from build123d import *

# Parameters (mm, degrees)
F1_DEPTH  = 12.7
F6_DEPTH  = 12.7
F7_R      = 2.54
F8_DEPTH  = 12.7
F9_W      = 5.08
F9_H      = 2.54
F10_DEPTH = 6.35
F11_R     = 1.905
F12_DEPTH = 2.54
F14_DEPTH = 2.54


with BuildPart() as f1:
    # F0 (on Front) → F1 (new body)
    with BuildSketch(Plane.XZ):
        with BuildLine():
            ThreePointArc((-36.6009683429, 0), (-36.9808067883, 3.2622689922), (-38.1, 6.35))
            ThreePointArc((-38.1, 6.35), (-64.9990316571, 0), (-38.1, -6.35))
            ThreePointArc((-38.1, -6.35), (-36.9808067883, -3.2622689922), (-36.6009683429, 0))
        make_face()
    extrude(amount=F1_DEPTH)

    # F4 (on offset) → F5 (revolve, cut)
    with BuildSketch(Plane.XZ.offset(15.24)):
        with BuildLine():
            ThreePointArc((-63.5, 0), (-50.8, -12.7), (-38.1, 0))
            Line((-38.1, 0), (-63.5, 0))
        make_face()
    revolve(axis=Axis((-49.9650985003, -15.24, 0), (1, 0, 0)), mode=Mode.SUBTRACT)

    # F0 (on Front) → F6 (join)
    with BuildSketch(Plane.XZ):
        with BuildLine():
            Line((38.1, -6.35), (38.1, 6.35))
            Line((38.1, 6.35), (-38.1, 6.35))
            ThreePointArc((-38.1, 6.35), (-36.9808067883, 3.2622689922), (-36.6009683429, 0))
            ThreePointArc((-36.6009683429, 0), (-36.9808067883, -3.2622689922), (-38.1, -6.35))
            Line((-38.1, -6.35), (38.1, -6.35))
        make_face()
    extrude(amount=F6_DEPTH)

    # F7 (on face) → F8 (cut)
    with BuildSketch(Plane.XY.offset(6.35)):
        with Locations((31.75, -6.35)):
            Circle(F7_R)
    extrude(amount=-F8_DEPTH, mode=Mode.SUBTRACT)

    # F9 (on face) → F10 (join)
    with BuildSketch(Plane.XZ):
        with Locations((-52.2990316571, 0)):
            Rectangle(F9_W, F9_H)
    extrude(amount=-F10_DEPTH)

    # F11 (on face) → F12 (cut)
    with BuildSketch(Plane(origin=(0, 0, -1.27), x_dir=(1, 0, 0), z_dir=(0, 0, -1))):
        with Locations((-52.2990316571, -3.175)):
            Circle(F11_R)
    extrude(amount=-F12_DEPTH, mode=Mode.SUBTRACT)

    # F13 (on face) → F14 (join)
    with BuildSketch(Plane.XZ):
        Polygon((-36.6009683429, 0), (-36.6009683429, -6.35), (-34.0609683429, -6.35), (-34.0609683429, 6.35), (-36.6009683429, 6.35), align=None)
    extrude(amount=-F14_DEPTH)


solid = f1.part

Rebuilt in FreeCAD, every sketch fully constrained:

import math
import FreeCAD as App
import Part
import Sketcher
from FreeCAD import Vector
Q = App.Units.Quantity


def add_polygon(sketch, points):
    """Adds a closed chain of lines whose ends are joined by coincident constraints."""
    first, n = sketch.GeometryCount, len(points)
    for a, b in zip(points, points[1:] + points[:1]):
        sketch.addGeometry(Part.LineSegment(App.Vector(*a, 0), App.Vector(*b, 0)), False)
    for i in range(n):
        sketch.addConstraint(Sketcher.Constraint("Coincident", first + i, 2, first + (i + 1) % n, 1))

doc = App.newDocument("Part")
params = doc.addObject("Spreadsheet::Sheet", "Params")
for row, (alias, value) in enumerate([
    ("pad1_length", "0.5 in"),
    ("sketch2_radius", "0.5 in"),
    ("groove_angle", "360 deg"),
    ("sketch3_width", "3 in"),
    ("sketch3_height", "0.5 in"),
    ("pad2_length", "0.5 in"),
    ("sketch4_diameter", "0.2 in"),
    ("pocket1_length", "0.5 in"),
    ("sketch5_width", "0.2 in"),
    ("sketch5_height", "0.1 in"),
    ("pad3_length", "0.25 in"),
    ("sketch6_diameter", "0.15 in"),
    ("pocket2_length", "0.1 in"),
    ("sketch7_width", "0.1 in"),
    ("sketch7_height", "0.5 in"),
    ("pad4_length", "0.1 in"),
], start=1):
    params.set(f"A{row}", alias)
    params.set(f"B{row}", "=" + value)
    params.setAlias(f"B{row}", alias)

body = doc.addObject("PartDesign::Body", "Body")

sketch1 = body.newObject("Sketcher::SketchObject", "Sketch")
sketch1.AttachmentSupport = (doc.getObject("XZ_Plane"), [""])
sketch1.MapMode = "FlatFace"
sketch1.addGeometry(Part.ArcOfCircle(Part.Circle(Vector(-51, 0, 0), Vector(0, 0, 1), 14), math.radians(0), math.radians(27)), False)
sketch1.addGeometry(Part.ArcOfCircle(Part.Circle(Vector(-51, 0, 0), Vector(0, 0, 1), 14), math.radians(27), math.radians(333)), False)
sketch1.addGeometry(Part.ArcOfCircle(Part.Circle(Vector(-51, 0, 0), Vector(0, 0, 1), 14), math.radians(-27), math.radians(0)), False)
sketch1.addConstraint(Sketcher.Constraint("Tangent", 0, 2, 1, 1))
sketch1.addConstraint(Sketcher.Constraint("Tangent", 1, 2, 2, 1))
sketch1.addConstraint(Sketcher.Constraint("Tangent", 2, 2, 0, 1))
sketch1.addConstraint(Sketcher.Constraint("Symmetric", 0, 2, 1, 2, -1))
sketch1.addConstraint(Sketcher.Constraint("PointOnObject", 2, 2, -1))
sketch1.addConstraint(Sketcher.Constraint("DistanceX", 0, 3, -1, 1, Q("2 in")))
sketch1.addConstraint(Sketcher.Constraint("DistanceX", 0, 2, -1, 1, Q("1.5 in")))
sketch1.addConstraint(Sketcher.Constraint("DistanceY", 1, 2, 0, 2, Q("0.5 in")))
pad1 = body.newObject("PartDesign::Pad", "Pad")
pad1.Profile = sketch1
pad1.setExpression("Length", "Params.pad1_length")

sketch2 = body.newObject("Sketcher::SketchObject", "Sketch001")
sketch2.AttachmentSupport = (doc.getObject("XZ_Plane"), [""])
sketch2.MapMode = "FlatFace"
sketch2.AttachmentOffset = App.Placement(Vector(0, 0, 0.6 * 25.4), App.Rotation())
sketch2.addGeometry(Part.ArcOfCircle(Part.Circle(Vector(-51, 0, 0), Vector(0, 0, 1), 13), math.radians(180), math.radians(360)), False)
sketch2.addGeometry(Part.LineSegment(Vector(-38, 0, 0), Vector(-64, 0, 0)), False)
sketch2.addConstraint(Sketcher.Constraint("Coincident", 0, 1, 1, 2))
sketch2.addConstraint(Sketcher.Constraint("Coincident", 1, 1, 0, 2))
sketch2.addConstraint(Sketcher.Constraint("Horizontal", 1))
sketch2.addConstraint(Sketcher.Constraint("PointOnObject", 0, 3, -1))
sketch2.addConstraint(Sketcher.Constraint("PointOnObject", 0, 1, -1))
sketch2.addConstraint(Sketcher.Constraint("Radius", 0, Q("0.5 in")))
sketch2.addConstraint(Sketcher.Constraint("DistanceX", 0, 3, -1, 1, Q("2 in")))
sketch2.setExpression("Constraints[5]", "Params.sketch2_radius")
groove = body.newObject("PartDesign::Groove", "Groove")
groove.Profile = sketch2
groove.ReferenceAxis = (sketch2, ["H_Axis"])
groove.setExpression("Angle", "Params.groove_angle")

sketch3 = body.newObject("Sketcher::SketchObject", "Sketch002")
sketch3.AttachmentSupport = (doc.getObject("XZ_Plane"), [""])
sketch3.MapMode = "FlatFace"
sketch3.addGeometry(Part.LineSegment(Vector(38, -6, 0), Vector(38, 6, 0)), False)
sketch3.addGeometry(Part.LineSegment(Vector(38, 6, 0), Vector(-38, 6, 0)), False)
sketch3.addGeometry(Part.ArcOfCircle(Part.Circle(Vector(-51, 0, 0), Vector(0, 0, 1), 14), math.radians(0), math.radians(27)), False)
sketch3.addGeometry(Part.ArcOfCircle(Part.Circle(Vector(-51, 0, 0), Vector(0, 0, 1), 14), math.radians(-27), math.radians(0)), False)
sketch3.addGeometry(Part.LineSegment(Vector(-38, -6, 0), Vector(38, -6, 0)), False)
sketch3.addConstraint(Sketcher.Constraint("Coincident", 0, 2, 1, 1))
sketch3.addConstraint(Sketcher.Constraint("Coincident", 1, 2, 2, 2))
sketch3.addConstraint(Sketcher.Constraint("Tangent", 2, 1, 3, 2))
sketch3.addConstraint(Sketcher.Constraint("Coincident", 3, 1, 4, 1))
sketch3.addConstraint(Sketcher.Constraint("Coincident", 4, 2, 0, 1))
sketch3.addConstraint(Sketcher.Constraint("Vertical", 0))
sketch3.addConstraint(Sketcher.Constraint("Horizontal", 1))
sketch3.addConstraint(Sketcher.Constraint("Horizontal", 4))
sketch3.addConstraint(Sketcher.Constraint("Equal", 2, 3))
sketch3.addConstraint(Sketcher.Constraint("Symmetric", 0, 2, 3, 1, -1, 1))
sketch3.addConstraint(Sketcher.Constraint("PointOnObject", 2, 3, -1))
sketch3.addConstraint(Sketcher.Constraint("PointOnObject", 2, 1, -1))
sketch3.addConstraint(Sketcher.Constraint("DistanceX", 1, 2, 1, 1, Q("3 in")))
sketch3.addConstraint(Sketcher.Constraint("DistanceY", 0, 1, 0, 2, Q("0.5 in")))
sketch3.addConstraint(Sketcher.Constraint("DistanceX", 2, 3, -1, 1, Q("2 in")))
sketch3.setExpression("Constraints[12]", "Params.sketch3_width")
sketch3.setExpression("Constraints[13]", "Params.sketch3_height")
pad2 = body.newObject("PartDesign::Pad", "Pad001")
pad2.Profile = sketch3
pad2.setExpression("Length", "Params.pad2_length")

sketch4 = body.newObject("Sketcher::SketchObject", "Sketch003")
sketch4.AttachmentSupport = (doc.getObject("XY_Plane"), [""])
sketch4.MapMode = "FlatFace"
sketch4.AttachmentOffset = App.Placement(Vector(0, 0, 0.25 * 25.4), App.Rotation())
sketch4.addGeometry(Part.Circle(Vector(31.8, -6.3, 0), Vector(0, 0, 1), 2.5), False)
sketch4.addConstraint(Sketcher.Constraint("Diameter", 0, Q("0.2 in")))
sketch4.addConstraint(Sketcher.Constraint("DistanceX", -1, 1, 0, 3, Q("1.25 in")))
sketch4.addConstraint(Sketcher.Constraint("DistanceY", 0, 3, -1, 1, Q("0.25 in")))
sketch4.setExpression("Constraints[0]", "Params.sketch4_diameter")
pocket1 = body.newObject("PartDesign::Pocket", "Pocket")
pocket1.Profile = sketch4
pocket1.setExpression("Length", "Params.pocket1_length")

sketch5 = body.newObject("Sketcher::SketchObject", "Sketch004")
sketch5.AttachmentSupport = (doc.getObject("XZ_Plane"), [""])
sketch5.MapMode = "FlatFace"
add_polygon(sketch5, [(-54.8, 1.3), (-54.8, -1.3), (-49.8, -1.3), (-49.8, 1.3)])
sketch5.addConstraint(Sketcher.Constraint("Vertical", 0))
sketch5.addConstraint(Sketcher.Constraint("Horizontal", 1))
sketch5.addConstraint(Sketcher.Constraint("Vertical", 2))
sketch5.addConstraint(Sketcher.Constraint("Horizontal", 3))
sketch5.addConstraint(Sketcher.Constraint("DistanceX", 1, 1, 1, 2, Q("0.2 in")))
sketch5.addConstraint(Sketcher.Constraint("DistanceY", 0, 2, 0, 1, Q("0.1 in")))
sketch5.addConstraint(Sketcher.Constraint("DistanceY", 0, 2, -1, 1, Q("0.05 in")))
sketch5.addConstraint(Sketcher.Constraint("DistanceX", 0, 2, -1, 1, 54.839032))
sketch5.setExpression("Constraints[8]", "Params.sketch5_width")
sketch5.setExpression("Constraints[9]", "Params.sketch5_height")
pad3 = body.newObject("PartDesign::Pad", "Pad002")
pad3.Profile = sketch5
pad3.setExpression("Length", "Params.pad3_length")
pad3.Reversed = True

sketch6 = body.newObject("Sketcher::SketchObject", "Sketch005")
sketch6.AttachmentSupport = (doc.getObject("XY_Plane"), [""])
sketch6.MapMode = "FlatFace"
sketch6.AttachmentOffset = App.Placement(Vector(0, 0, -0.05 * 25.4), App.Rotation())
sketch6.addGeometry(Part.Circle(Vector(-52.3, 3.2, 0), Vector(0, 0, 1), 1.9), False)
sketch6.addConstraint(Sketcher.Constraint("Diameter", 0, Q("0.15 in")))
sketch6.addConstraint(Sketcher.Constraint("DistanceY", -1, 1, 0, 3, Q("0.125 in")))
sketch6.addConstraint(Sketcher.Constraint("DistanceX", 0, 3, -1, 1, 52.299032))
sketch6.setExpression("Constraints[0]", "Params.sketch6_diameter")
pocket2 = body.newObject("PartDesign::Pocket", "Pocket001")
pocket2.Profile = sketch6
pocket2.setExpression("Length", "Params.pocket2_length")
pocket2.Reversed = True

sketch7 = body.newObject("Sketcher::SketchObject", "Sketch006")
sketch7.AttachmentSupport = (doc.getObject("XZ_Plane"), [""])
sketch7.MapMode = "FlatFace"
add_polygon(sketch7, [(-36.6, -6.3), (-34.1, -6.3), (-34.1, 6.3), (-36.6, 6.3)])
sketch7.addConstraint(Sketcher.Constraint("Horizontal", 0))
sketch7.addConstraint(Sketcher.Constraint("Vertical", 1))
sketch7.addConstraint(Sketcher.Constraint("Horizontal", 2))
sketch7.addConstraint(Sketcher.Constraint("Vertical", 3))
sketch7.addConstraint(Sketcher.Constraint("DistanceX", 0, 1, 0, 2, Q("0.1 in")))
sketch7.addConstraint(Sketcher.Constraint("DistanceY", 1, 1, 1, 2, Q("0.5 in")))
sketch7.addConstraint(Sketcher.Constraint("DistanceY", 0, 2, -1, 1, Q("0.25 in")))
sketch7.addConstraint(Sketcher.Constraint("DistanceX", 0, 2, -1, 1, 34.060968))
sketch7.setExpression("Constraints[8]", "Params.sketch7_width")
sketch7.setExpression("Constraints[9]", "Params.sketch7_height")
pad4 = body.newObject("PartDesign::Pad", "Pad003")
pad4.Profile = sketch7
pad4.setExpression("Length", "Params.pad4_length")
pad4.Reversed = True

doc.recompute()
